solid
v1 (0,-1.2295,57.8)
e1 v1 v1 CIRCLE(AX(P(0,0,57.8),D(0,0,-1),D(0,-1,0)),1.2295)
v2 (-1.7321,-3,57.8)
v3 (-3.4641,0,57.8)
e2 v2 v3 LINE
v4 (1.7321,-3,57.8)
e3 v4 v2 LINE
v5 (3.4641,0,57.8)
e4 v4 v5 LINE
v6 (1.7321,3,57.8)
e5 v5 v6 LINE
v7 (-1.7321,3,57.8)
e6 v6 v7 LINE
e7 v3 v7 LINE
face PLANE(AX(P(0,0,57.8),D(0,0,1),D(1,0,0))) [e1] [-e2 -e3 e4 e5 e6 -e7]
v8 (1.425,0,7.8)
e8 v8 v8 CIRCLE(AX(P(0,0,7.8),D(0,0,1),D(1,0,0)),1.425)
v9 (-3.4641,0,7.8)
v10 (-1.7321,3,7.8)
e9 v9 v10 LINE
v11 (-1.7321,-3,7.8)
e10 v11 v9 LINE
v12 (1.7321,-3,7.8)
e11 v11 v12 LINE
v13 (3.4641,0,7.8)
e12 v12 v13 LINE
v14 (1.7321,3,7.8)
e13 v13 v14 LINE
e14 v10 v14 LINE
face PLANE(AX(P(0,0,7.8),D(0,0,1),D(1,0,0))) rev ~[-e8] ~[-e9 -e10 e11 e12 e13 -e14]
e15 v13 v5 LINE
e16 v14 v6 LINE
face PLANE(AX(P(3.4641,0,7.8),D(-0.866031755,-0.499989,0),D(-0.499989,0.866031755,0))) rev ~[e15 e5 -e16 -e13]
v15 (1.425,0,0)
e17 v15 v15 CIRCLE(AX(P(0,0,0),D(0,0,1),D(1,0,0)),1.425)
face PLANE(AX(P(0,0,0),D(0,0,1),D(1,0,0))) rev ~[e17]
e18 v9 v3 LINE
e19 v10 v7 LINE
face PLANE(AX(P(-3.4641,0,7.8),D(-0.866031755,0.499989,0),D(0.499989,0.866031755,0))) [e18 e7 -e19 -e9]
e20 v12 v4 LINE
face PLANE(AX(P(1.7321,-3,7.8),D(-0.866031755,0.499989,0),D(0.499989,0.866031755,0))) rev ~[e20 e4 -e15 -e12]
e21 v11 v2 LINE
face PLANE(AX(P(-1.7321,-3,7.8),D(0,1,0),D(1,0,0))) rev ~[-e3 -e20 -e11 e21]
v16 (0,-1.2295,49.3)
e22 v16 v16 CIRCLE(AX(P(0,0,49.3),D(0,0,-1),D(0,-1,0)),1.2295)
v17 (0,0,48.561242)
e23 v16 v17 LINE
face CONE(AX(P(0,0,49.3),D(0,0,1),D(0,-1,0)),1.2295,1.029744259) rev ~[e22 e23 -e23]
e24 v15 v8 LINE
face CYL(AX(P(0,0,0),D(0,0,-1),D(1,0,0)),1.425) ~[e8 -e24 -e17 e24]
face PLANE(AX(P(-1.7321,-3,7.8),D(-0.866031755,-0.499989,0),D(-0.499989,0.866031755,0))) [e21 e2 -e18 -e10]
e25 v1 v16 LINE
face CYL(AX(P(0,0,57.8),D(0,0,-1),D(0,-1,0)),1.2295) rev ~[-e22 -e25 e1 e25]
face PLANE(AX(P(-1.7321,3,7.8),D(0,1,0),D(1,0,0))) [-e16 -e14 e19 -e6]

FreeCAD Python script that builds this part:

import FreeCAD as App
import Part
import Sketcher
Q = App.Units.Quantity

doc = App.newDocument("Part")
body = doc.addObject("PartDesign::Body", "Body")

# Sketch on XY plane
sketch1 = body.newObject("Sketcher::SketchObject", "Sketch")
sketch1.AttachmentSupport = (doc.getObject("XY_Plane"), [""])
sketch1.MapMode = "FlatFace"
sketch1.addGeometry(Part.Circle(App.Vector(0, 0, 0), App.Vector(0, 0, 1), 1.4), False)
sketch1.addConstraint([
    Sketcher.Constraint("Coincident", 0, 3, -1, 1),
    Sketcher.Constraint("Diameter", 0, 2.85),
])
pad1 = body.newObject("PartDesign::Pad", "Pad")
pad1.Profile = sketch1
pad1.Length = 7.8

# Sketch on XY plane
sketch2 = body.newObject("Sketcher::SketchObject", "Sketch001")
sketch2.AttachmentSupport = (doc.getObject("XY_Plane"), [""])
sketch2.MapMode = "FlatFace"
sketch2.AttachmentOffset = App.Placement(App.Vector(0, 0, 7.8), App.Rotation())
sketch2.addGeometry([
    Part.LineSegment(App.Vector(-3.5, 0, 0), App.Vector(-1.7, -3, 0)),  # 0
    Part.LineSegment(App.Vector(-1.7, -3, 0), App.Vector(1.7, -3, 0)),  # 1
    Part.LineSegment(App.Vector(1.7, -3, 0), App.Vector(3.5, 0, 0)),  # 2
    Part.LineSegment(App.Vector(3.5, 0, 0), App.Vector(1.7, 3, 0)),  # 3
    Part.LineSegment(App.Vector(1.7, 3, 0), App.Vector(-1.7, 3, 0)),  # 4
    Part.LineSegment(App.Vector(-1.7, 3, 0), App.Vector(-3.5, 0, 0)),  # 5
], False)
sketch2.addConstraint([
    Sketcher.Constraint("Coincident", 0, 2, 1, 1),
    Sketcher.Constraint("Coincident", 1, 2, 2, 1),
    Sketcher.Constraint("Coincident", 2, 2, 3, 1),
    Sketcher.Constraint("Coincident", 3, 2, 4, 1),
    Sketcher.Constraint("Coincident", 4, 2, 5, 1),
    Sketcher.Constraint("Coincident", 5, 2, 0, 1),
    Sketcher.Constraint("Horizontal", 1),
    Sketcher.Constraint("Horizontal", 4),
    Sketcher.Constraint("Symmetric", 0, 2, 3, 2, -1, 1),
    Sketcher.Constraint("Symmetric", 2, 2, 5, 2, -1, 1),
    Sketcher.Constraint("PointOnObject", 2, 2, -1),
    Sketcher.Constraint("Parallel", 2, 5),
    Sketcher.Constraint("Vertical", 1, 2, 3, 2),
    Sketcher.Constraint("DistanceY", 1, 2, 3, 2, 6.0),
    Sketcher.Constraint("Angle", 0, Q("-60.0007 deg")),
    Sketcher.Constraint("DistanceX", 1, 1, 1, 2, 3.4642),
])
pad2 = body.newObject("PartDesign::Pad", "Pad001")
pad2.Profile = sketch2
pad2.Length = 50

# Sketch on XY plane
sketch3 = body.newObject("Sketcher::SketchObject", "Sketch002")
sketch3.AttachmentSupport = (doc.getObject("XY_Plane"), [""])
sketch3.MapMode = "FlatFace"
sketch3.AttachmentOffset = App.Placement(App.Vector(0, 0, 57.8), App.Rotation())
sketch3.addGeometry(Part.Circle(App.Vector(0, 0, 0), App.Vector(0, 0, 1), 1.2), False)
sketch3.addConstraint([
    Sketcher.Constraint("Coincident", 0, 3, -1, 1),
    Sketcher.Constraint("Diameter", 0, 2.459),
])
doc.recompute()
hole = body.newObject("PartDesign::Hole", "Hole")
hole.Profile = sketch3
hole.ThreadType = "None"
hole.Diameter = 2.459
hole.DepthType = "Dimension"
hole.Depth = 8.5
hole.DrillPoint = "Angled"
hole.DrillPointAngle = 118

doc.recompute()
